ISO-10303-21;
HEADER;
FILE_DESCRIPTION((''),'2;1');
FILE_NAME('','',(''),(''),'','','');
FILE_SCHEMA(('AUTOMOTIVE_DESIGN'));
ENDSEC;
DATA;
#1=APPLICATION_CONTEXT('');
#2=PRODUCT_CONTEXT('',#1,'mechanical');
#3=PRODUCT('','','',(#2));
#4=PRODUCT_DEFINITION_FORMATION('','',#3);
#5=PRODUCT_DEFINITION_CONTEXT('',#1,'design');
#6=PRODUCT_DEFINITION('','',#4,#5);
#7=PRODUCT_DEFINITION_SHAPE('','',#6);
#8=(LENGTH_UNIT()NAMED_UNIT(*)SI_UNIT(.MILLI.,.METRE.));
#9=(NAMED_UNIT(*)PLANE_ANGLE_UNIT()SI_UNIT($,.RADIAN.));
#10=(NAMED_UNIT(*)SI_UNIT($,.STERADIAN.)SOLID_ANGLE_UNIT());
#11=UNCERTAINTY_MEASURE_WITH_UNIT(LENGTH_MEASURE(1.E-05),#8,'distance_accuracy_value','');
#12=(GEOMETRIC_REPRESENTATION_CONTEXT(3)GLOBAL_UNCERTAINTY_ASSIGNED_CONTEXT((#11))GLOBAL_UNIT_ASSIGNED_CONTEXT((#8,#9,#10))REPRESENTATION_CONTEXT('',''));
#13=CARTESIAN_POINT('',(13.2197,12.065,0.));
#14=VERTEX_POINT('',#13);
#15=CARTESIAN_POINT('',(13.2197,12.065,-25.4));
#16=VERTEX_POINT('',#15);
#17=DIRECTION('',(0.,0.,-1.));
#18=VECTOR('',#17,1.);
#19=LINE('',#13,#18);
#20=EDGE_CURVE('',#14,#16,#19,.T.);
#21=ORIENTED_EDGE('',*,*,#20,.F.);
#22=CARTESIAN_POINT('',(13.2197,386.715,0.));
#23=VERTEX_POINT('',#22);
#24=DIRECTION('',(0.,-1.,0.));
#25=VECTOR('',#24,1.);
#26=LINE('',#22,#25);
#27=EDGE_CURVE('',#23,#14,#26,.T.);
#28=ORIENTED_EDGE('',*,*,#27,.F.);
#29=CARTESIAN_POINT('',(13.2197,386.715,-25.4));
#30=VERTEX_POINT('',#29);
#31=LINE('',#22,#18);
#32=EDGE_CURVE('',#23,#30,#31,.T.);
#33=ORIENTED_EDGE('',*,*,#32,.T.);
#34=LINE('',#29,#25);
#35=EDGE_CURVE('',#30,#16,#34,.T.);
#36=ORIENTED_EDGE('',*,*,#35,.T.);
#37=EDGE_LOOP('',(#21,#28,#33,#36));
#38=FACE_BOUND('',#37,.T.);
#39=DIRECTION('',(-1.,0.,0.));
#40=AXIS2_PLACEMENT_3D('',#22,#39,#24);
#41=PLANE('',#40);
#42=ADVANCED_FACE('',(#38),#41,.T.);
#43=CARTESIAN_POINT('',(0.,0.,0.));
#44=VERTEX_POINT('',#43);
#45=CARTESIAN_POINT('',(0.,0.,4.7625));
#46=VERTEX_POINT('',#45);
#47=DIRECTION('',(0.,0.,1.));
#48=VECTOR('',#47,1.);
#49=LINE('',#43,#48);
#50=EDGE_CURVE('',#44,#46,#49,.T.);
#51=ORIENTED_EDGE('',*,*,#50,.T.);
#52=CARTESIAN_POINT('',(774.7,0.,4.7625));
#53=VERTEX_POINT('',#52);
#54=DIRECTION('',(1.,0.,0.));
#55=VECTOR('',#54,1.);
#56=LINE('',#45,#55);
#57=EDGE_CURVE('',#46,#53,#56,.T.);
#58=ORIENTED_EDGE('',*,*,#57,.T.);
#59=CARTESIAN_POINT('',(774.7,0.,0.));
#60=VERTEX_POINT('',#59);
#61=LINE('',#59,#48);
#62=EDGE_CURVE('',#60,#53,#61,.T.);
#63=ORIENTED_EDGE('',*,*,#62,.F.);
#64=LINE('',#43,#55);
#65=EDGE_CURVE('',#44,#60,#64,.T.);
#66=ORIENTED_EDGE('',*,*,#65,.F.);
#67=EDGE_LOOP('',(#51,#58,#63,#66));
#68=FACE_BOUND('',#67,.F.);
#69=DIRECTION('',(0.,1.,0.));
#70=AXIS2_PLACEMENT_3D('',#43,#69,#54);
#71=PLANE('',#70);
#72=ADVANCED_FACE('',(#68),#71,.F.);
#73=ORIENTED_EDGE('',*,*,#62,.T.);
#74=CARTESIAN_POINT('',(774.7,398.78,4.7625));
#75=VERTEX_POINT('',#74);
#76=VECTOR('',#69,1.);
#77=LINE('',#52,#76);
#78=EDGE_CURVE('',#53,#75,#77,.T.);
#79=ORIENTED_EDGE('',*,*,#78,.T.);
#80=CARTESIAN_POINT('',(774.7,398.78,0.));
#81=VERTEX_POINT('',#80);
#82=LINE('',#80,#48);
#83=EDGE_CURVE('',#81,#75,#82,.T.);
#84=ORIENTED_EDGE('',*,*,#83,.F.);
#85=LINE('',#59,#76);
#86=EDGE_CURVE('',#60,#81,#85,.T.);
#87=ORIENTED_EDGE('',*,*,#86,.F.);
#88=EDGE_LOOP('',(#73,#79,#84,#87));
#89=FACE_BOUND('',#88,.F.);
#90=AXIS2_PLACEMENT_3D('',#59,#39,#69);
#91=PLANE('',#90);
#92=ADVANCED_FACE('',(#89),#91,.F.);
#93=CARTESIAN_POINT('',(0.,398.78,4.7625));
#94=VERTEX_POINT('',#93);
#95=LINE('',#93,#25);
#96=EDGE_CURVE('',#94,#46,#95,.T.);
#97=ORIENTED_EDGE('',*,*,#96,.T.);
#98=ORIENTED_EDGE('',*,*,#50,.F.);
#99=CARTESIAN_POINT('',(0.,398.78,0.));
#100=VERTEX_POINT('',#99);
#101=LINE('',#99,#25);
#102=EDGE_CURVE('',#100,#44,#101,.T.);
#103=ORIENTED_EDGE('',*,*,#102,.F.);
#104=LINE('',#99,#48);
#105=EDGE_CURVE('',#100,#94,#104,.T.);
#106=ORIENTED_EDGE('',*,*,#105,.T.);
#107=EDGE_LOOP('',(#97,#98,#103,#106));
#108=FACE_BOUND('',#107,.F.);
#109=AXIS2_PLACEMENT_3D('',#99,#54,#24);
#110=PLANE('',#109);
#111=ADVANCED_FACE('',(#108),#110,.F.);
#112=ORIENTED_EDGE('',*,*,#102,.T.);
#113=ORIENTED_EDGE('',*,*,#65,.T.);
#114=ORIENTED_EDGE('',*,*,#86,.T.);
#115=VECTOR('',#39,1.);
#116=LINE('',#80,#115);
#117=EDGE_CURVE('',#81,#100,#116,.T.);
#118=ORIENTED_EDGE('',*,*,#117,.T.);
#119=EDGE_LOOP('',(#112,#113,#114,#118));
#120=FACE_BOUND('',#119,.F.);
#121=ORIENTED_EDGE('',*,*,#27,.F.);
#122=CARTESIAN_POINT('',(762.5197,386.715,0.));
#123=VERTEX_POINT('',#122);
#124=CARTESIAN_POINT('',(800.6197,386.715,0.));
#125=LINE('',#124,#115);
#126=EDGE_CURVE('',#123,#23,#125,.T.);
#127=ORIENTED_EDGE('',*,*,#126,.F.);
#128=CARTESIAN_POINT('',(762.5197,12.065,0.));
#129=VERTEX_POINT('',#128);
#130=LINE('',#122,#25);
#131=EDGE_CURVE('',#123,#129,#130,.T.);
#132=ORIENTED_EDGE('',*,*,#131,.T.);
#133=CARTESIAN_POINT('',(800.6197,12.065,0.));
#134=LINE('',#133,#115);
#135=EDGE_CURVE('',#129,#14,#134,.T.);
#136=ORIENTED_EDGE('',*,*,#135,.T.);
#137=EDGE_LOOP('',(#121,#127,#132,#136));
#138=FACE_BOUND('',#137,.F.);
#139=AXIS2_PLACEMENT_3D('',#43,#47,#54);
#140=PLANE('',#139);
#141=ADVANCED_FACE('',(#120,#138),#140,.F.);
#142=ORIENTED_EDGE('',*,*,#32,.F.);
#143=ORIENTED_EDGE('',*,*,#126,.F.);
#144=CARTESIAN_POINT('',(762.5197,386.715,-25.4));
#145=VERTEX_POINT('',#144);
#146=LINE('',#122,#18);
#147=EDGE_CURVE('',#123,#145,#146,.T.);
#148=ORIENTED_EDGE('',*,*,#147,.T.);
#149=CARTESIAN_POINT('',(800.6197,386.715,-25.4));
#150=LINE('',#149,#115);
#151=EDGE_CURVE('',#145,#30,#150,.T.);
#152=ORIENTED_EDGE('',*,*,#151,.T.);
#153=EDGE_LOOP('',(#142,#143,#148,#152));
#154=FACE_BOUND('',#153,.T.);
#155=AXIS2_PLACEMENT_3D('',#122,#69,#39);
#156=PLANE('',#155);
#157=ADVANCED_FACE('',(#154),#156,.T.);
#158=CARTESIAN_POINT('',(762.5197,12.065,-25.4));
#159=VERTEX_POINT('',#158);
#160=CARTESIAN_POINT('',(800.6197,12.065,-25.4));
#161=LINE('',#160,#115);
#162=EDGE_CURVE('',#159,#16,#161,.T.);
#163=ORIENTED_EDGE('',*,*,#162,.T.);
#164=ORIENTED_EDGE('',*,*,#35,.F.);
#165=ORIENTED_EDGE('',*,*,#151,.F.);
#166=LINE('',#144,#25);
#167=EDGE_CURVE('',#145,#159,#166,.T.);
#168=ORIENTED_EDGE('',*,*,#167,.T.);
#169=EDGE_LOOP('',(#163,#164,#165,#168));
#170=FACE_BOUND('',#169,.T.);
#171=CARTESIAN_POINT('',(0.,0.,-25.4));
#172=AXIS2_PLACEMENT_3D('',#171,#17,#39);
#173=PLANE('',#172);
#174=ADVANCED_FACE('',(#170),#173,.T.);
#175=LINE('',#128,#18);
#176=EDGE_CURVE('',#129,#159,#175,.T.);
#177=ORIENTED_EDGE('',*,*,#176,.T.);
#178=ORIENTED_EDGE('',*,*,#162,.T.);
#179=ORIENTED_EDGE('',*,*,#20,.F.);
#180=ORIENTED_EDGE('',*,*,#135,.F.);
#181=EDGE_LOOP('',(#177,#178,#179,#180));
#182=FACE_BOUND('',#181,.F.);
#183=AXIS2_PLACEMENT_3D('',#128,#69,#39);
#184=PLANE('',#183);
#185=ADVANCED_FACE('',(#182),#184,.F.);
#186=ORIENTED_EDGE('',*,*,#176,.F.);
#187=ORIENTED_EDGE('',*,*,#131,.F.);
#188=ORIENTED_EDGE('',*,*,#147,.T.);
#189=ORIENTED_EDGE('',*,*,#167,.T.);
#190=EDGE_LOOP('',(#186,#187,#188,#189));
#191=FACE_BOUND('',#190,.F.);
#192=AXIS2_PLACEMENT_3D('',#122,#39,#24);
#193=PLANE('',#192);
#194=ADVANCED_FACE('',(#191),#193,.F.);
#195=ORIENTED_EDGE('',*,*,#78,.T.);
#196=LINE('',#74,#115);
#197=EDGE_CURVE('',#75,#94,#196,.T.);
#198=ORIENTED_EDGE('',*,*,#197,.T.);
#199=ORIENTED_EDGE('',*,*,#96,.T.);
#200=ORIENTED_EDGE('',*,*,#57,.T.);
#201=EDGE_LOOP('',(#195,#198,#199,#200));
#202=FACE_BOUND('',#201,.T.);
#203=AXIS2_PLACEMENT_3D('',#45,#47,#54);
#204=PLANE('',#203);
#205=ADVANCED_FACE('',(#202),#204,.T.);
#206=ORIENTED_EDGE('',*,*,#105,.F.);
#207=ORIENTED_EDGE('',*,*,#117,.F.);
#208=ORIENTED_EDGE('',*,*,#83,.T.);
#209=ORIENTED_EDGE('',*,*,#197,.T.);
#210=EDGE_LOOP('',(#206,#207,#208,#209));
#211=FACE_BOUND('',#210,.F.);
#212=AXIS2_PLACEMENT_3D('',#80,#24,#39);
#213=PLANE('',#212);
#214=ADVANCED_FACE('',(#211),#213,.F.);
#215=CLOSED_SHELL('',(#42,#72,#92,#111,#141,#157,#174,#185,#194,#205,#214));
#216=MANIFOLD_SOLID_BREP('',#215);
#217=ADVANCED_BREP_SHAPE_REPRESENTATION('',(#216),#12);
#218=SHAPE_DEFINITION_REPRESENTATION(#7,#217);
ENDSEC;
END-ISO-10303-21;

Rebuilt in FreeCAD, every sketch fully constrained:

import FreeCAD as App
import Part
import Sketcher
from FreeCAD import Vector
Q = App.Units.Quantity


def add_polygon(sketch, points):
    """Adds a closed chain of lines whose ends are joined by coincident constraints."""
    first, n = sketch.GeometryCount, len(points)
    for a, b in zip(points, points[1:] + points[:1]):
        sketch.addGeometry(Part.LineSegment(App.Vector(*a, 0), App.Vector(*b, 0)), False)
    for i in range(n):
        sketch.addConstraint(Sketcher.Constraint("Coincident", first + i, 2, first + (i + 1) % n, 1))

doc = App.newDocument("Part")
body = doc.addObject("PartDesign::Body", "Body")

# Sketch on XY plane
sketch1 = body.newObject("Sketcher::SketchObject", "Sketch")
sketch1.AttachmentSupport = (doc.getObject("XY_Plane"), [""])
sketch1.MapMode = "FlatFace"
add_polygon(sketch1, [(0, 398.78), (0, 0), (774.7, 0), (774.7, 398.78)])  # lines 0-3
sketch1.addConstraint([
    Sketcher.Constraint("Vertical", 0),
    Sketcher.Constraint("Horizontal", 1),
    Sketcher.Constraint("Vertical", 2),
    Sketcher.Constraint("Horizontal", 3),
    Sketcher.Constraint("Coincident", 0, 2, -1, 1),
    Sketcher.Constraint("DistanceX", 1, 1, 1, 2, Q("30.5 in")),
    Sketcher.Constraint("DistanceY", 0, 2, 0, 1, Q("15.7 in")),
])
pad1 = body.newObject("PartDesign::Pad", "Pad")
pad1.Profile = sketch1
pad1.Length = Q("0.1875 in")

# Sketch on XY plane
sketch2 = body.newObject("Sketcher::SketchObject", "Sketch001")
sketch2.AttachmentSupport = (doc.getObject("XY_Plane"), [""])
sketch2.MapMode = "FlatFace"
add_polygon(sketch2, [(13.2197, 386.715), (762.5197, 386.715), (762.5197, 12.065), (13.2197, 12.065)])  # lines 0-3
sketch2.addConstraint([
    Sketcher.Constraint("Horizontal", 0),
    Sketcher.Constraint("Vertical", 1),
    Sketcher.Constraint("Horizontal", 2),
    Sketcher.Constraint("Vertical", 3),
    Sketcher.Constraint("DistanceX", 0, 1, 0, 2, Q("29.5 in")),
    Sketcher.Constraint("DistanceY", 1, 2, 1, 1, Q("14.75 in")),
    Sketcher.Constraint("DistanceY", -1, 1, 0, 2, Q("15.225 in")),
    Sketcher.Constraint("DistanceX", -1, 1, 0, 2, 762.5197),
])
pad2 = body.newObject("PartDesign::Pad", "Pad001")
pad2.Profile = sketch2
pad2.Length = Q("1 in")
pad2.Reversed = True

doc.recompute()
